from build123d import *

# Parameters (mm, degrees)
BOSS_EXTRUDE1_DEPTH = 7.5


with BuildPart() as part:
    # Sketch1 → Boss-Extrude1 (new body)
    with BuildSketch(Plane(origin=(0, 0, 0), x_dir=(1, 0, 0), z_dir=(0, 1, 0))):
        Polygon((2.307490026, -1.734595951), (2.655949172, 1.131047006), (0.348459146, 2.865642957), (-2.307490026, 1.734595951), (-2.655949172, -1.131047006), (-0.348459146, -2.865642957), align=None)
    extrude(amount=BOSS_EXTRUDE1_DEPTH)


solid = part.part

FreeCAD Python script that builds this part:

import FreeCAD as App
import Part
import Sketcher
Q = App.Units.Quantity

doc = App.newDocument("Part")
params = doc.addObject("Spreadsheet::Sheet", "Params")
for row, (alias, value) in enumerate([
    ("pad1_length", "7.5 mm"),
], start=1):
    params.set(f"A{row}", alias)
    params.set(f"B{row}", "=" + value)
    params.setAlias(f"B{row}", alias)

body = doc.addObject("PartDesign::Body", "Body")

sketch1 = body.newObject("Sketcher::SketchObject", "Sketch")
sketch1.AttachmentSupport = (doc.getObject("XZ_Plane"), [""])
sketch1.MapMode = "FlatFace"
sketch1.addGeometry(Part.LineSegment(App.Vector(2.30749, 1.734596, 0), App.Vector(2.655949, -1.131047, 0)), False)
sketch1.addGeometry(Part.LineSegment(App.Vector(2.655949, -1.131047, 0), App.Vector(0.348459, -2.865643, 0)), False)
sketch1.addGeometry(Part.LineSegment(App.Vector(0.348459, -2.865643, 0), App.Vector(-2.30749, -1.734596, 0)), False)
sketch1.addGeometry(Part.LineSegment(App.Vector(-2.30749, -1.734596, 0), App.Vector(-2.655949, 1.131047, 0)), False)
sketch1.addGeometry(Part.LineSegment(App.Vector(-2.655949, 1.131047, 0), App.Vector(-0.348459, 2.865643, 0)), False)
sketch1.addGeometry(Part.LineSegment(App.Vector(-0.348459, 2.865643, 0), App.Vector(2.30749, 1.734596, 0)), False)
sketch1.addConstraint(Sketcher.Constraint("Coincident", 0, 2, 1, 1))
sketch1.addConstraint(Sketcher.Constraint("Coincident", 1, 2, 2, 1))
sketch1.addConstraint(Sketcher.Constraint("Coincident", 2, 2, 3, 1))
sketch1.addConstraint(Sketcher.Constraint("Coincident", 3, 2, 4, 1))
sketch1.addConstraint(Sketcher.Constraint("Coincident", 4, 2, 5, 1))
sketch1.addConstraint(Sketcher.Constraint("Coincident", 5, 2, 0, 1))
sketch1.addConstraint(Sketcher.Constraint("Symmetric", 0, 2, 3, 2, -1, 1))
sketch1.addConstraint(Sketcher.Constraint("Symmetric", 1, 2, 4, 2, -1, 1))
sketch1.addConstraint(Sketcher.Constraint("Symmetric", 2, 2, 5, 2, -1, 1))
sketch1.addConstraint(Sketcher.Constraint("Equal", 0, 1))
sketch1.addConstraint(Sketcher.Constraint("Equal", 1, 2))
sketch1.addConstraint(Sketcher.Constraint("DistanceX", 3, 2, 0, 2, Q("5.311898 mm")))
sketch1.addConstraint(Sketcher.Constraint("Distance", 0, Q("2.886751 mm")))
sketch1.addConstraint(Sketcher.Constraint("DistanceX", -1, 1, 1, 2, Q("0.348459 mm")))
sketch1.addConstraint(Sketcher.Constraint("DistanceX", 2, 2, -1, 1, Q("2.30749 mm")))
pad1 = body.newObject("PartDesign::Pad", "Pad")
pad1.Profile = sketch1
pad1.setExpression("Length", "Params.pad1_length")
pad1.Reversed = True

doc.recompute()
